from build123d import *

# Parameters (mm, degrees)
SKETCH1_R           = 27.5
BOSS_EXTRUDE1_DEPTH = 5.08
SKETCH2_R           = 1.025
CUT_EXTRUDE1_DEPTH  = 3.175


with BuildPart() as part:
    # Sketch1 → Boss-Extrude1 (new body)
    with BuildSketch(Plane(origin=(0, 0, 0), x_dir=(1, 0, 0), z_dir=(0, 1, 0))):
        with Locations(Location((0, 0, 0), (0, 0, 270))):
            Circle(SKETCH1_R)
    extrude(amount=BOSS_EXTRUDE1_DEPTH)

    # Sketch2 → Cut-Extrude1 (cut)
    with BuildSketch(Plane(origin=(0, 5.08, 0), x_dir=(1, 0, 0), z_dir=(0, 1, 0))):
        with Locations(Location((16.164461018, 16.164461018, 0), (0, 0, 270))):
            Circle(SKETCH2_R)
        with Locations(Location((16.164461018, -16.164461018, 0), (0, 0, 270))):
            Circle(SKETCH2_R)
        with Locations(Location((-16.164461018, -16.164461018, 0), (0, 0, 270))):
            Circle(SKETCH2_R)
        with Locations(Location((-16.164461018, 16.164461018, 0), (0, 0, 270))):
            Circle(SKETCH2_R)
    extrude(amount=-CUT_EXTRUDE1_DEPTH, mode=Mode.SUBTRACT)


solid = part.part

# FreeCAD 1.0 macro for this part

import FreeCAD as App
import Part
import Sketcher
from FreeCAD import Vector

doc = App.newDocument("Part")
params = doc.addObject("Spreadsheet::Sheet", "Params")
for row, (alias, value) in enumerate([
    ("pad1_length", "0.2 in"),
    ("pocket1_length", "0.125 in"),
], start=1):
    params.set(f"A{row}", alias)
    params.set(f"B{row}", "=" + value)
    params.setAlias(f"B{row}", alias)

body = doc.addObject("PartDesign::Body", "Body")

# Sketch on XZ plane
sketch1 = doc.addObject("Sketcher::SketchObject", "Sketch")
body.addObject(sketch1)
sketch1.AttachmentSupport = (doc.XZ_Plane, [""])
sketch1.MapMode = "FlatFace"
sketch1.addGeometry(Part.Circle(Vector(0, 0, 0), Vector(0, 0, 1), 27.5), False)
sketch1.addConstraint(Sketcher.Constraint("Coincident", 0, 3, -1, 1))
sketch1.addConstraint(Sketcher.Constraint("Diameter", 0, 55.0))
pad1 = doc.addObject("PartDesign::Pad", "Pad")
body.addObject(pad1)
pad1.Profile = sketch1
pad1.setExpression("Length", "Params.pad1_length")
pad1.Reversed = True

# Sketch on XZ plane
sketch2 = doc.addObject("Sketcher::SketchObject", "Sketch001")
body.addObject(sketch2)
sketch2.AttachmentSupport = (doc.XZ_Plane, [""])
sketch2.MapMode = "FlatFace"
sketch2.AttachmentOffset = App.Placement(Vector(0, 0, -0.2 * 25.4), App.Rotation())
sketch2.addGeometry(Part.Circle(Vector(16.164461, -16.164461, 0), Vector(0, 0, 1), 1.025), False)
sketch2.addGeometry(Part.Circle(Vector(16.164461, 16.164461, 0), Vector(0, 0, 1), 1.025), False)
sketch2.addGeometry(Part.Circle(Vector(-16.164461, 16.164461, 0), Vector(0, 0, 1), 1.025), False)
sketch2.addGeometry(Part.Circle(Vector(-16.164461, -16.164461, 0), Vector(0, 0, 1), 1.025), False)
sketch2.addConstraint(Sketcher.Constraint("Equal", 0, 1))
sketch2.addConstraint(Sketcher.Constraint("Equal", 1, 2))
sketch2.addConstraint(Sketcher.Constraint("Equal", 2, 3))
sketch2.addConstraint(Sketcher.Constraint("Symmetric", 0, 3, 2, 3, -1, 1))
sketch2.addConstraint(Sketcher.Constraint("Symmetric", 1, 3, 3, 3, -1, 1))
sketch2.addConstraint(Sketcher.Constraint("Symmetric", 1, 3, 2, 3, -2))
sketch2.addConstraint(Sketcher.Constraint("Diameter", 0, 2.05))
sketch2.addConstraint(Sketcher.Constraint("DistanceX", -1, 1, 0, 3, 16.164461))
sketch2.addConstraint(Sketcher.Constraint("DistanceY", 0, 3, -1, 1, 16.164461))
pocket1 = doc.addObject("PartDesign::Pocket", "Pocket")
body.addObject(pocket1)
pocket1.Profile = sketch2
pocket1.setExpression("Length", "Params.pocket1_length")
pocket1.Reversed = True

doc.recompute()
